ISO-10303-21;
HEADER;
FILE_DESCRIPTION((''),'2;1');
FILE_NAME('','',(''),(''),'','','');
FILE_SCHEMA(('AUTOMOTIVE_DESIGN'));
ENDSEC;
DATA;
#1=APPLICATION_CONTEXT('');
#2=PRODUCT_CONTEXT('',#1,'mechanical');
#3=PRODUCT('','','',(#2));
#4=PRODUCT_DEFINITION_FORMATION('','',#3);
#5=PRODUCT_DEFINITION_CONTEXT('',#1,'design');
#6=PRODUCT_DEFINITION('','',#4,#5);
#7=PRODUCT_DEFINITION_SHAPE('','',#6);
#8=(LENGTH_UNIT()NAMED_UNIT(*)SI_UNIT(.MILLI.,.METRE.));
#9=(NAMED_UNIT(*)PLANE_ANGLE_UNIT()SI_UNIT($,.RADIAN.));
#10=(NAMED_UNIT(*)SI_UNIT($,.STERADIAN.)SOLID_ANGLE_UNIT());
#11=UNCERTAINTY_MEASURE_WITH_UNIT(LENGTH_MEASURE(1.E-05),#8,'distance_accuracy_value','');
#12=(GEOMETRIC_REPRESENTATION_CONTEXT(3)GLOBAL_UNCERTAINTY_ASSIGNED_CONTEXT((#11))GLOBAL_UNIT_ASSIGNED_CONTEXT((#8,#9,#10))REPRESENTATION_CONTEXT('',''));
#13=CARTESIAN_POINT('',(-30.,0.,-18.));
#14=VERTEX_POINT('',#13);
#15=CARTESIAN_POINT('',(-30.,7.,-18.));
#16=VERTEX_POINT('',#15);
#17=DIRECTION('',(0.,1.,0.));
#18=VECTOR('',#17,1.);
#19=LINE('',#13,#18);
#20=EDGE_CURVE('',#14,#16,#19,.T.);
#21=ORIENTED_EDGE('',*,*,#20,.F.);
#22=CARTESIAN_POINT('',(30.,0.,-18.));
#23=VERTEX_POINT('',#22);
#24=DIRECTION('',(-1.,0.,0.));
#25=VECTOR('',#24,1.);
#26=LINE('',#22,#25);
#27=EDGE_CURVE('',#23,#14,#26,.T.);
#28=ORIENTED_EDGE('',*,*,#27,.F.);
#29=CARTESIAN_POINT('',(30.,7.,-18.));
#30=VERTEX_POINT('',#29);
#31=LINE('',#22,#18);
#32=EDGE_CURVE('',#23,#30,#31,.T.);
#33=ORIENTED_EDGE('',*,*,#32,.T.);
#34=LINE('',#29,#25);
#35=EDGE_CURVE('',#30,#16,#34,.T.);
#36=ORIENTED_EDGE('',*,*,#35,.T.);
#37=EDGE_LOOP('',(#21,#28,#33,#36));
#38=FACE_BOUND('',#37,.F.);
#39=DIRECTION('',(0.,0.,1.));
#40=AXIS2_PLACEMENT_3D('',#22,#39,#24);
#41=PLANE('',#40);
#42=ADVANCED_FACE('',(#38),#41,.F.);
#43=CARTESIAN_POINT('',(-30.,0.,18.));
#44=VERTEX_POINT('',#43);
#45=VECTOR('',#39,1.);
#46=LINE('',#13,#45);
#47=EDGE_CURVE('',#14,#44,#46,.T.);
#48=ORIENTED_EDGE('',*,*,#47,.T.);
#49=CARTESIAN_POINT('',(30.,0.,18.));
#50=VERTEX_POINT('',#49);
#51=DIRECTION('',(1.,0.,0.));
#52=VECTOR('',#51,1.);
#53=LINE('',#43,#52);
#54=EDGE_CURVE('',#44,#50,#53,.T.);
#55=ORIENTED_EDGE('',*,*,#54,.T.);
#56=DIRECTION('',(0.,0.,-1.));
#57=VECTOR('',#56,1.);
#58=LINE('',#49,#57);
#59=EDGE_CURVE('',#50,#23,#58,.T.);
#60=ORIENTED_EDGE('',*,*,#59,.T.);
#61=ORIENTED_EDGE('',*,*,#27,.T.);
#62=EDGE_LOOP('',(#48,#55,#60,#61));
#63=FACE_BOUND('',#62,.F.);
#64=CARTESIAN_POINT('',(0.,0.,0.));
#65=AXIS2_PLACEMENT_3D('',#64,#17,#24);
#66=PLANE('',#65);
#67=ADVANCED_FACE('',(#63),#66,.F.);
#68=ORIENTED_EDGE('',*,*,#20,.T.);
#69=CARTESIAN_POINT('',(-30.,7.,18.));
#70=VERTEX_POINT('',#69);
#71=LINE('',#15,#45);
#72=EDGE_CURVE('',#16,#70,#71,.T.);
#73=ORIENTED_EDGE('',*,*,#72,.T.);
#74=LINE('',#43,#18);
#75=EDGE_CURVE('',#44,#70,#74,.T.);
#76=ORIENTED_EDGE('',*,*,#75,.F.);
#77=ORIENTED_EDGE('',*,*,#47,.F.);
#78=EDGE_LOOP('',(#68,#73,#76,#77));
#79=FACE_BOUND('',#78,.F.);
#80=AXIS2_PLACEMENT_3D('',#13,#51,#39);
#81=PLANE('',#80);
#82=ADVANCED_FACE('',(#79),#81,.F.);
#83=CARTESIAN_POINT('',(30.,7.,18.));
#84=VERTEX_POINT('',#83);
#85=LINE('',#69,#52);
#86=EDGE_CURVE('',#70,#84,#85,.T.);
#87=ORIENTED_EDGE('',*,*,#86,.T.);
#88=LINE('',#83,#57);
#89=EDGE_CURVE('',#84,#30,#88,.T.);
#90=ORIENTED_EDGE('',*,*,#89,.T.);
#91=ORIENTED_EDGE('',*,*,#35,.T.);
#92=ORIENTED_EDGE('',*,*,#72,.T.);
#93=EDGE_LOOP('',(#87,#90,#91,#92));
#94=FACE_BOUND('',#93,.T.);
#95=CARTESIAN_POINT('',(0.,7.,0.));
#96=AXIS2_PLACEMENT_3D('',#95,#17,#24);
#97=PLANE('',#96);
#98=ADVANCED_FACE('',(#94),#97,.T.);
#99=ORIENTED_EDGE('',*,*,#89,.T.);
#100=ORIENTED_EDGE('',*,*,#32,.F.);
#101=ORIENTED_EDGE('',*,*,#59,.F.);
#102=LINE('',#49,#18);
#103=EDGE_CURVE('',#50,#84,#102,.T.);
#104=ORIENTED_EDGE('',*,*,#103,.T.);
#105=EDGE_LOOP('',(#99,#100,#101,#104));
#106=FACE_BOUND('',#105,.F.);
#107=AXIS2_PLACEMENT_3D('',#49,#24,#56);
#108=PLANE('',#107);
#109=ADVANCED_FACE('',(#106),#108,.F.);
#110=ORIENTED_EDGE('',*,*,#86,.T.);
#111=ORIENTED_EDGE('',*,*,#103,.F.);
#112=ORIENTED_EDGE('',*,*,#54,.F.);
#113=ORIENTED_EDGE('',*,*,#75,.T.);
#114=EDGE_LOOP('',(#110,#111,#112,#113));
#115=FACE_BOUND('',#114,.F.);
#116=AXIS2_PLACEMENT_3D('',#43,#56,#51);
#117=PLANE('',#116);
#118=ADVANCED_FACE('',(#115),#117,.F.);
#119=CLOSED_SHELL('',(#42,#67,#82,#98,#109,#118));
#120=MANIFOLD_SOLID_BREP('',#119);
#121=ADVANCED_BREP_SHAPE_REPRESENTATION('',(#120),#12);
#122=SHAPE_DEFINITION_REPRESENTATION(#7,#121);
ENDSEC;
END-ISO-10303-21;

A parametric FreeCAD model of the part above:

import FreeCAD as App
import Part
import Sketcher

V = App.Vector

doc = App.newDocument("Part")
body = doc.addObject("PartDesign::Body", "Body")

sketch1 = body.newObject("Sketcher::SketchObject", "Sketch")
sketch1.AttachmentSupport = (doc.getObject("XZ_Plane"), [""])
sketch1.MapMode = "FlatFace"
sketch1.addGeometry([
    Part.LineSegment(V(-30, -18, 0), V(-30, 18, 0)),
    Part.LineSegment(V(-30, 18, 0), V(30, 18, 0)),
    Part.LineSegment(V(30, 18, 0), V(30, -18, 0)),
    Part.LineSegment(V(30, -18, 0), V(-30, -18, 0)),
], False)
sketch1.addConstraint([
    Sketcher.Constraint("Coincident", 0, 2, 1, 1),
    Sketcher.Constraint("Coincident", 1, 2, 2, 1),
    Sketcher.Constraint("Coincident", 2, 2, 3, 1),
    Sketcher.Constraint("Coincident", 3, 2, 0, 1),
    Sketcher.Constraint("Vertical", 0),
    Sketcher.Constraint("Horizontal", 1),
    Sketcher.Constraint("Vertical", 2),
    Sketcher.Constraint("Horizontal", 3),
    Sketcher.Constraint("Symmetric", 0, 2, 2, 2, -1, 1),
    Sketcher.Constraint("DistanceX", 1, 1, 1, 2, 60.0),
    Sketcher.Constraint("DistanceY", 0, 1, 0, 2, 36.0),
])
pad1 = body.newObject("PartDesign::Pad", "Pad")
pad1.Profile = sketch1
pad1.Length = 7
pad1.Reversed = True

doc.recompute()
